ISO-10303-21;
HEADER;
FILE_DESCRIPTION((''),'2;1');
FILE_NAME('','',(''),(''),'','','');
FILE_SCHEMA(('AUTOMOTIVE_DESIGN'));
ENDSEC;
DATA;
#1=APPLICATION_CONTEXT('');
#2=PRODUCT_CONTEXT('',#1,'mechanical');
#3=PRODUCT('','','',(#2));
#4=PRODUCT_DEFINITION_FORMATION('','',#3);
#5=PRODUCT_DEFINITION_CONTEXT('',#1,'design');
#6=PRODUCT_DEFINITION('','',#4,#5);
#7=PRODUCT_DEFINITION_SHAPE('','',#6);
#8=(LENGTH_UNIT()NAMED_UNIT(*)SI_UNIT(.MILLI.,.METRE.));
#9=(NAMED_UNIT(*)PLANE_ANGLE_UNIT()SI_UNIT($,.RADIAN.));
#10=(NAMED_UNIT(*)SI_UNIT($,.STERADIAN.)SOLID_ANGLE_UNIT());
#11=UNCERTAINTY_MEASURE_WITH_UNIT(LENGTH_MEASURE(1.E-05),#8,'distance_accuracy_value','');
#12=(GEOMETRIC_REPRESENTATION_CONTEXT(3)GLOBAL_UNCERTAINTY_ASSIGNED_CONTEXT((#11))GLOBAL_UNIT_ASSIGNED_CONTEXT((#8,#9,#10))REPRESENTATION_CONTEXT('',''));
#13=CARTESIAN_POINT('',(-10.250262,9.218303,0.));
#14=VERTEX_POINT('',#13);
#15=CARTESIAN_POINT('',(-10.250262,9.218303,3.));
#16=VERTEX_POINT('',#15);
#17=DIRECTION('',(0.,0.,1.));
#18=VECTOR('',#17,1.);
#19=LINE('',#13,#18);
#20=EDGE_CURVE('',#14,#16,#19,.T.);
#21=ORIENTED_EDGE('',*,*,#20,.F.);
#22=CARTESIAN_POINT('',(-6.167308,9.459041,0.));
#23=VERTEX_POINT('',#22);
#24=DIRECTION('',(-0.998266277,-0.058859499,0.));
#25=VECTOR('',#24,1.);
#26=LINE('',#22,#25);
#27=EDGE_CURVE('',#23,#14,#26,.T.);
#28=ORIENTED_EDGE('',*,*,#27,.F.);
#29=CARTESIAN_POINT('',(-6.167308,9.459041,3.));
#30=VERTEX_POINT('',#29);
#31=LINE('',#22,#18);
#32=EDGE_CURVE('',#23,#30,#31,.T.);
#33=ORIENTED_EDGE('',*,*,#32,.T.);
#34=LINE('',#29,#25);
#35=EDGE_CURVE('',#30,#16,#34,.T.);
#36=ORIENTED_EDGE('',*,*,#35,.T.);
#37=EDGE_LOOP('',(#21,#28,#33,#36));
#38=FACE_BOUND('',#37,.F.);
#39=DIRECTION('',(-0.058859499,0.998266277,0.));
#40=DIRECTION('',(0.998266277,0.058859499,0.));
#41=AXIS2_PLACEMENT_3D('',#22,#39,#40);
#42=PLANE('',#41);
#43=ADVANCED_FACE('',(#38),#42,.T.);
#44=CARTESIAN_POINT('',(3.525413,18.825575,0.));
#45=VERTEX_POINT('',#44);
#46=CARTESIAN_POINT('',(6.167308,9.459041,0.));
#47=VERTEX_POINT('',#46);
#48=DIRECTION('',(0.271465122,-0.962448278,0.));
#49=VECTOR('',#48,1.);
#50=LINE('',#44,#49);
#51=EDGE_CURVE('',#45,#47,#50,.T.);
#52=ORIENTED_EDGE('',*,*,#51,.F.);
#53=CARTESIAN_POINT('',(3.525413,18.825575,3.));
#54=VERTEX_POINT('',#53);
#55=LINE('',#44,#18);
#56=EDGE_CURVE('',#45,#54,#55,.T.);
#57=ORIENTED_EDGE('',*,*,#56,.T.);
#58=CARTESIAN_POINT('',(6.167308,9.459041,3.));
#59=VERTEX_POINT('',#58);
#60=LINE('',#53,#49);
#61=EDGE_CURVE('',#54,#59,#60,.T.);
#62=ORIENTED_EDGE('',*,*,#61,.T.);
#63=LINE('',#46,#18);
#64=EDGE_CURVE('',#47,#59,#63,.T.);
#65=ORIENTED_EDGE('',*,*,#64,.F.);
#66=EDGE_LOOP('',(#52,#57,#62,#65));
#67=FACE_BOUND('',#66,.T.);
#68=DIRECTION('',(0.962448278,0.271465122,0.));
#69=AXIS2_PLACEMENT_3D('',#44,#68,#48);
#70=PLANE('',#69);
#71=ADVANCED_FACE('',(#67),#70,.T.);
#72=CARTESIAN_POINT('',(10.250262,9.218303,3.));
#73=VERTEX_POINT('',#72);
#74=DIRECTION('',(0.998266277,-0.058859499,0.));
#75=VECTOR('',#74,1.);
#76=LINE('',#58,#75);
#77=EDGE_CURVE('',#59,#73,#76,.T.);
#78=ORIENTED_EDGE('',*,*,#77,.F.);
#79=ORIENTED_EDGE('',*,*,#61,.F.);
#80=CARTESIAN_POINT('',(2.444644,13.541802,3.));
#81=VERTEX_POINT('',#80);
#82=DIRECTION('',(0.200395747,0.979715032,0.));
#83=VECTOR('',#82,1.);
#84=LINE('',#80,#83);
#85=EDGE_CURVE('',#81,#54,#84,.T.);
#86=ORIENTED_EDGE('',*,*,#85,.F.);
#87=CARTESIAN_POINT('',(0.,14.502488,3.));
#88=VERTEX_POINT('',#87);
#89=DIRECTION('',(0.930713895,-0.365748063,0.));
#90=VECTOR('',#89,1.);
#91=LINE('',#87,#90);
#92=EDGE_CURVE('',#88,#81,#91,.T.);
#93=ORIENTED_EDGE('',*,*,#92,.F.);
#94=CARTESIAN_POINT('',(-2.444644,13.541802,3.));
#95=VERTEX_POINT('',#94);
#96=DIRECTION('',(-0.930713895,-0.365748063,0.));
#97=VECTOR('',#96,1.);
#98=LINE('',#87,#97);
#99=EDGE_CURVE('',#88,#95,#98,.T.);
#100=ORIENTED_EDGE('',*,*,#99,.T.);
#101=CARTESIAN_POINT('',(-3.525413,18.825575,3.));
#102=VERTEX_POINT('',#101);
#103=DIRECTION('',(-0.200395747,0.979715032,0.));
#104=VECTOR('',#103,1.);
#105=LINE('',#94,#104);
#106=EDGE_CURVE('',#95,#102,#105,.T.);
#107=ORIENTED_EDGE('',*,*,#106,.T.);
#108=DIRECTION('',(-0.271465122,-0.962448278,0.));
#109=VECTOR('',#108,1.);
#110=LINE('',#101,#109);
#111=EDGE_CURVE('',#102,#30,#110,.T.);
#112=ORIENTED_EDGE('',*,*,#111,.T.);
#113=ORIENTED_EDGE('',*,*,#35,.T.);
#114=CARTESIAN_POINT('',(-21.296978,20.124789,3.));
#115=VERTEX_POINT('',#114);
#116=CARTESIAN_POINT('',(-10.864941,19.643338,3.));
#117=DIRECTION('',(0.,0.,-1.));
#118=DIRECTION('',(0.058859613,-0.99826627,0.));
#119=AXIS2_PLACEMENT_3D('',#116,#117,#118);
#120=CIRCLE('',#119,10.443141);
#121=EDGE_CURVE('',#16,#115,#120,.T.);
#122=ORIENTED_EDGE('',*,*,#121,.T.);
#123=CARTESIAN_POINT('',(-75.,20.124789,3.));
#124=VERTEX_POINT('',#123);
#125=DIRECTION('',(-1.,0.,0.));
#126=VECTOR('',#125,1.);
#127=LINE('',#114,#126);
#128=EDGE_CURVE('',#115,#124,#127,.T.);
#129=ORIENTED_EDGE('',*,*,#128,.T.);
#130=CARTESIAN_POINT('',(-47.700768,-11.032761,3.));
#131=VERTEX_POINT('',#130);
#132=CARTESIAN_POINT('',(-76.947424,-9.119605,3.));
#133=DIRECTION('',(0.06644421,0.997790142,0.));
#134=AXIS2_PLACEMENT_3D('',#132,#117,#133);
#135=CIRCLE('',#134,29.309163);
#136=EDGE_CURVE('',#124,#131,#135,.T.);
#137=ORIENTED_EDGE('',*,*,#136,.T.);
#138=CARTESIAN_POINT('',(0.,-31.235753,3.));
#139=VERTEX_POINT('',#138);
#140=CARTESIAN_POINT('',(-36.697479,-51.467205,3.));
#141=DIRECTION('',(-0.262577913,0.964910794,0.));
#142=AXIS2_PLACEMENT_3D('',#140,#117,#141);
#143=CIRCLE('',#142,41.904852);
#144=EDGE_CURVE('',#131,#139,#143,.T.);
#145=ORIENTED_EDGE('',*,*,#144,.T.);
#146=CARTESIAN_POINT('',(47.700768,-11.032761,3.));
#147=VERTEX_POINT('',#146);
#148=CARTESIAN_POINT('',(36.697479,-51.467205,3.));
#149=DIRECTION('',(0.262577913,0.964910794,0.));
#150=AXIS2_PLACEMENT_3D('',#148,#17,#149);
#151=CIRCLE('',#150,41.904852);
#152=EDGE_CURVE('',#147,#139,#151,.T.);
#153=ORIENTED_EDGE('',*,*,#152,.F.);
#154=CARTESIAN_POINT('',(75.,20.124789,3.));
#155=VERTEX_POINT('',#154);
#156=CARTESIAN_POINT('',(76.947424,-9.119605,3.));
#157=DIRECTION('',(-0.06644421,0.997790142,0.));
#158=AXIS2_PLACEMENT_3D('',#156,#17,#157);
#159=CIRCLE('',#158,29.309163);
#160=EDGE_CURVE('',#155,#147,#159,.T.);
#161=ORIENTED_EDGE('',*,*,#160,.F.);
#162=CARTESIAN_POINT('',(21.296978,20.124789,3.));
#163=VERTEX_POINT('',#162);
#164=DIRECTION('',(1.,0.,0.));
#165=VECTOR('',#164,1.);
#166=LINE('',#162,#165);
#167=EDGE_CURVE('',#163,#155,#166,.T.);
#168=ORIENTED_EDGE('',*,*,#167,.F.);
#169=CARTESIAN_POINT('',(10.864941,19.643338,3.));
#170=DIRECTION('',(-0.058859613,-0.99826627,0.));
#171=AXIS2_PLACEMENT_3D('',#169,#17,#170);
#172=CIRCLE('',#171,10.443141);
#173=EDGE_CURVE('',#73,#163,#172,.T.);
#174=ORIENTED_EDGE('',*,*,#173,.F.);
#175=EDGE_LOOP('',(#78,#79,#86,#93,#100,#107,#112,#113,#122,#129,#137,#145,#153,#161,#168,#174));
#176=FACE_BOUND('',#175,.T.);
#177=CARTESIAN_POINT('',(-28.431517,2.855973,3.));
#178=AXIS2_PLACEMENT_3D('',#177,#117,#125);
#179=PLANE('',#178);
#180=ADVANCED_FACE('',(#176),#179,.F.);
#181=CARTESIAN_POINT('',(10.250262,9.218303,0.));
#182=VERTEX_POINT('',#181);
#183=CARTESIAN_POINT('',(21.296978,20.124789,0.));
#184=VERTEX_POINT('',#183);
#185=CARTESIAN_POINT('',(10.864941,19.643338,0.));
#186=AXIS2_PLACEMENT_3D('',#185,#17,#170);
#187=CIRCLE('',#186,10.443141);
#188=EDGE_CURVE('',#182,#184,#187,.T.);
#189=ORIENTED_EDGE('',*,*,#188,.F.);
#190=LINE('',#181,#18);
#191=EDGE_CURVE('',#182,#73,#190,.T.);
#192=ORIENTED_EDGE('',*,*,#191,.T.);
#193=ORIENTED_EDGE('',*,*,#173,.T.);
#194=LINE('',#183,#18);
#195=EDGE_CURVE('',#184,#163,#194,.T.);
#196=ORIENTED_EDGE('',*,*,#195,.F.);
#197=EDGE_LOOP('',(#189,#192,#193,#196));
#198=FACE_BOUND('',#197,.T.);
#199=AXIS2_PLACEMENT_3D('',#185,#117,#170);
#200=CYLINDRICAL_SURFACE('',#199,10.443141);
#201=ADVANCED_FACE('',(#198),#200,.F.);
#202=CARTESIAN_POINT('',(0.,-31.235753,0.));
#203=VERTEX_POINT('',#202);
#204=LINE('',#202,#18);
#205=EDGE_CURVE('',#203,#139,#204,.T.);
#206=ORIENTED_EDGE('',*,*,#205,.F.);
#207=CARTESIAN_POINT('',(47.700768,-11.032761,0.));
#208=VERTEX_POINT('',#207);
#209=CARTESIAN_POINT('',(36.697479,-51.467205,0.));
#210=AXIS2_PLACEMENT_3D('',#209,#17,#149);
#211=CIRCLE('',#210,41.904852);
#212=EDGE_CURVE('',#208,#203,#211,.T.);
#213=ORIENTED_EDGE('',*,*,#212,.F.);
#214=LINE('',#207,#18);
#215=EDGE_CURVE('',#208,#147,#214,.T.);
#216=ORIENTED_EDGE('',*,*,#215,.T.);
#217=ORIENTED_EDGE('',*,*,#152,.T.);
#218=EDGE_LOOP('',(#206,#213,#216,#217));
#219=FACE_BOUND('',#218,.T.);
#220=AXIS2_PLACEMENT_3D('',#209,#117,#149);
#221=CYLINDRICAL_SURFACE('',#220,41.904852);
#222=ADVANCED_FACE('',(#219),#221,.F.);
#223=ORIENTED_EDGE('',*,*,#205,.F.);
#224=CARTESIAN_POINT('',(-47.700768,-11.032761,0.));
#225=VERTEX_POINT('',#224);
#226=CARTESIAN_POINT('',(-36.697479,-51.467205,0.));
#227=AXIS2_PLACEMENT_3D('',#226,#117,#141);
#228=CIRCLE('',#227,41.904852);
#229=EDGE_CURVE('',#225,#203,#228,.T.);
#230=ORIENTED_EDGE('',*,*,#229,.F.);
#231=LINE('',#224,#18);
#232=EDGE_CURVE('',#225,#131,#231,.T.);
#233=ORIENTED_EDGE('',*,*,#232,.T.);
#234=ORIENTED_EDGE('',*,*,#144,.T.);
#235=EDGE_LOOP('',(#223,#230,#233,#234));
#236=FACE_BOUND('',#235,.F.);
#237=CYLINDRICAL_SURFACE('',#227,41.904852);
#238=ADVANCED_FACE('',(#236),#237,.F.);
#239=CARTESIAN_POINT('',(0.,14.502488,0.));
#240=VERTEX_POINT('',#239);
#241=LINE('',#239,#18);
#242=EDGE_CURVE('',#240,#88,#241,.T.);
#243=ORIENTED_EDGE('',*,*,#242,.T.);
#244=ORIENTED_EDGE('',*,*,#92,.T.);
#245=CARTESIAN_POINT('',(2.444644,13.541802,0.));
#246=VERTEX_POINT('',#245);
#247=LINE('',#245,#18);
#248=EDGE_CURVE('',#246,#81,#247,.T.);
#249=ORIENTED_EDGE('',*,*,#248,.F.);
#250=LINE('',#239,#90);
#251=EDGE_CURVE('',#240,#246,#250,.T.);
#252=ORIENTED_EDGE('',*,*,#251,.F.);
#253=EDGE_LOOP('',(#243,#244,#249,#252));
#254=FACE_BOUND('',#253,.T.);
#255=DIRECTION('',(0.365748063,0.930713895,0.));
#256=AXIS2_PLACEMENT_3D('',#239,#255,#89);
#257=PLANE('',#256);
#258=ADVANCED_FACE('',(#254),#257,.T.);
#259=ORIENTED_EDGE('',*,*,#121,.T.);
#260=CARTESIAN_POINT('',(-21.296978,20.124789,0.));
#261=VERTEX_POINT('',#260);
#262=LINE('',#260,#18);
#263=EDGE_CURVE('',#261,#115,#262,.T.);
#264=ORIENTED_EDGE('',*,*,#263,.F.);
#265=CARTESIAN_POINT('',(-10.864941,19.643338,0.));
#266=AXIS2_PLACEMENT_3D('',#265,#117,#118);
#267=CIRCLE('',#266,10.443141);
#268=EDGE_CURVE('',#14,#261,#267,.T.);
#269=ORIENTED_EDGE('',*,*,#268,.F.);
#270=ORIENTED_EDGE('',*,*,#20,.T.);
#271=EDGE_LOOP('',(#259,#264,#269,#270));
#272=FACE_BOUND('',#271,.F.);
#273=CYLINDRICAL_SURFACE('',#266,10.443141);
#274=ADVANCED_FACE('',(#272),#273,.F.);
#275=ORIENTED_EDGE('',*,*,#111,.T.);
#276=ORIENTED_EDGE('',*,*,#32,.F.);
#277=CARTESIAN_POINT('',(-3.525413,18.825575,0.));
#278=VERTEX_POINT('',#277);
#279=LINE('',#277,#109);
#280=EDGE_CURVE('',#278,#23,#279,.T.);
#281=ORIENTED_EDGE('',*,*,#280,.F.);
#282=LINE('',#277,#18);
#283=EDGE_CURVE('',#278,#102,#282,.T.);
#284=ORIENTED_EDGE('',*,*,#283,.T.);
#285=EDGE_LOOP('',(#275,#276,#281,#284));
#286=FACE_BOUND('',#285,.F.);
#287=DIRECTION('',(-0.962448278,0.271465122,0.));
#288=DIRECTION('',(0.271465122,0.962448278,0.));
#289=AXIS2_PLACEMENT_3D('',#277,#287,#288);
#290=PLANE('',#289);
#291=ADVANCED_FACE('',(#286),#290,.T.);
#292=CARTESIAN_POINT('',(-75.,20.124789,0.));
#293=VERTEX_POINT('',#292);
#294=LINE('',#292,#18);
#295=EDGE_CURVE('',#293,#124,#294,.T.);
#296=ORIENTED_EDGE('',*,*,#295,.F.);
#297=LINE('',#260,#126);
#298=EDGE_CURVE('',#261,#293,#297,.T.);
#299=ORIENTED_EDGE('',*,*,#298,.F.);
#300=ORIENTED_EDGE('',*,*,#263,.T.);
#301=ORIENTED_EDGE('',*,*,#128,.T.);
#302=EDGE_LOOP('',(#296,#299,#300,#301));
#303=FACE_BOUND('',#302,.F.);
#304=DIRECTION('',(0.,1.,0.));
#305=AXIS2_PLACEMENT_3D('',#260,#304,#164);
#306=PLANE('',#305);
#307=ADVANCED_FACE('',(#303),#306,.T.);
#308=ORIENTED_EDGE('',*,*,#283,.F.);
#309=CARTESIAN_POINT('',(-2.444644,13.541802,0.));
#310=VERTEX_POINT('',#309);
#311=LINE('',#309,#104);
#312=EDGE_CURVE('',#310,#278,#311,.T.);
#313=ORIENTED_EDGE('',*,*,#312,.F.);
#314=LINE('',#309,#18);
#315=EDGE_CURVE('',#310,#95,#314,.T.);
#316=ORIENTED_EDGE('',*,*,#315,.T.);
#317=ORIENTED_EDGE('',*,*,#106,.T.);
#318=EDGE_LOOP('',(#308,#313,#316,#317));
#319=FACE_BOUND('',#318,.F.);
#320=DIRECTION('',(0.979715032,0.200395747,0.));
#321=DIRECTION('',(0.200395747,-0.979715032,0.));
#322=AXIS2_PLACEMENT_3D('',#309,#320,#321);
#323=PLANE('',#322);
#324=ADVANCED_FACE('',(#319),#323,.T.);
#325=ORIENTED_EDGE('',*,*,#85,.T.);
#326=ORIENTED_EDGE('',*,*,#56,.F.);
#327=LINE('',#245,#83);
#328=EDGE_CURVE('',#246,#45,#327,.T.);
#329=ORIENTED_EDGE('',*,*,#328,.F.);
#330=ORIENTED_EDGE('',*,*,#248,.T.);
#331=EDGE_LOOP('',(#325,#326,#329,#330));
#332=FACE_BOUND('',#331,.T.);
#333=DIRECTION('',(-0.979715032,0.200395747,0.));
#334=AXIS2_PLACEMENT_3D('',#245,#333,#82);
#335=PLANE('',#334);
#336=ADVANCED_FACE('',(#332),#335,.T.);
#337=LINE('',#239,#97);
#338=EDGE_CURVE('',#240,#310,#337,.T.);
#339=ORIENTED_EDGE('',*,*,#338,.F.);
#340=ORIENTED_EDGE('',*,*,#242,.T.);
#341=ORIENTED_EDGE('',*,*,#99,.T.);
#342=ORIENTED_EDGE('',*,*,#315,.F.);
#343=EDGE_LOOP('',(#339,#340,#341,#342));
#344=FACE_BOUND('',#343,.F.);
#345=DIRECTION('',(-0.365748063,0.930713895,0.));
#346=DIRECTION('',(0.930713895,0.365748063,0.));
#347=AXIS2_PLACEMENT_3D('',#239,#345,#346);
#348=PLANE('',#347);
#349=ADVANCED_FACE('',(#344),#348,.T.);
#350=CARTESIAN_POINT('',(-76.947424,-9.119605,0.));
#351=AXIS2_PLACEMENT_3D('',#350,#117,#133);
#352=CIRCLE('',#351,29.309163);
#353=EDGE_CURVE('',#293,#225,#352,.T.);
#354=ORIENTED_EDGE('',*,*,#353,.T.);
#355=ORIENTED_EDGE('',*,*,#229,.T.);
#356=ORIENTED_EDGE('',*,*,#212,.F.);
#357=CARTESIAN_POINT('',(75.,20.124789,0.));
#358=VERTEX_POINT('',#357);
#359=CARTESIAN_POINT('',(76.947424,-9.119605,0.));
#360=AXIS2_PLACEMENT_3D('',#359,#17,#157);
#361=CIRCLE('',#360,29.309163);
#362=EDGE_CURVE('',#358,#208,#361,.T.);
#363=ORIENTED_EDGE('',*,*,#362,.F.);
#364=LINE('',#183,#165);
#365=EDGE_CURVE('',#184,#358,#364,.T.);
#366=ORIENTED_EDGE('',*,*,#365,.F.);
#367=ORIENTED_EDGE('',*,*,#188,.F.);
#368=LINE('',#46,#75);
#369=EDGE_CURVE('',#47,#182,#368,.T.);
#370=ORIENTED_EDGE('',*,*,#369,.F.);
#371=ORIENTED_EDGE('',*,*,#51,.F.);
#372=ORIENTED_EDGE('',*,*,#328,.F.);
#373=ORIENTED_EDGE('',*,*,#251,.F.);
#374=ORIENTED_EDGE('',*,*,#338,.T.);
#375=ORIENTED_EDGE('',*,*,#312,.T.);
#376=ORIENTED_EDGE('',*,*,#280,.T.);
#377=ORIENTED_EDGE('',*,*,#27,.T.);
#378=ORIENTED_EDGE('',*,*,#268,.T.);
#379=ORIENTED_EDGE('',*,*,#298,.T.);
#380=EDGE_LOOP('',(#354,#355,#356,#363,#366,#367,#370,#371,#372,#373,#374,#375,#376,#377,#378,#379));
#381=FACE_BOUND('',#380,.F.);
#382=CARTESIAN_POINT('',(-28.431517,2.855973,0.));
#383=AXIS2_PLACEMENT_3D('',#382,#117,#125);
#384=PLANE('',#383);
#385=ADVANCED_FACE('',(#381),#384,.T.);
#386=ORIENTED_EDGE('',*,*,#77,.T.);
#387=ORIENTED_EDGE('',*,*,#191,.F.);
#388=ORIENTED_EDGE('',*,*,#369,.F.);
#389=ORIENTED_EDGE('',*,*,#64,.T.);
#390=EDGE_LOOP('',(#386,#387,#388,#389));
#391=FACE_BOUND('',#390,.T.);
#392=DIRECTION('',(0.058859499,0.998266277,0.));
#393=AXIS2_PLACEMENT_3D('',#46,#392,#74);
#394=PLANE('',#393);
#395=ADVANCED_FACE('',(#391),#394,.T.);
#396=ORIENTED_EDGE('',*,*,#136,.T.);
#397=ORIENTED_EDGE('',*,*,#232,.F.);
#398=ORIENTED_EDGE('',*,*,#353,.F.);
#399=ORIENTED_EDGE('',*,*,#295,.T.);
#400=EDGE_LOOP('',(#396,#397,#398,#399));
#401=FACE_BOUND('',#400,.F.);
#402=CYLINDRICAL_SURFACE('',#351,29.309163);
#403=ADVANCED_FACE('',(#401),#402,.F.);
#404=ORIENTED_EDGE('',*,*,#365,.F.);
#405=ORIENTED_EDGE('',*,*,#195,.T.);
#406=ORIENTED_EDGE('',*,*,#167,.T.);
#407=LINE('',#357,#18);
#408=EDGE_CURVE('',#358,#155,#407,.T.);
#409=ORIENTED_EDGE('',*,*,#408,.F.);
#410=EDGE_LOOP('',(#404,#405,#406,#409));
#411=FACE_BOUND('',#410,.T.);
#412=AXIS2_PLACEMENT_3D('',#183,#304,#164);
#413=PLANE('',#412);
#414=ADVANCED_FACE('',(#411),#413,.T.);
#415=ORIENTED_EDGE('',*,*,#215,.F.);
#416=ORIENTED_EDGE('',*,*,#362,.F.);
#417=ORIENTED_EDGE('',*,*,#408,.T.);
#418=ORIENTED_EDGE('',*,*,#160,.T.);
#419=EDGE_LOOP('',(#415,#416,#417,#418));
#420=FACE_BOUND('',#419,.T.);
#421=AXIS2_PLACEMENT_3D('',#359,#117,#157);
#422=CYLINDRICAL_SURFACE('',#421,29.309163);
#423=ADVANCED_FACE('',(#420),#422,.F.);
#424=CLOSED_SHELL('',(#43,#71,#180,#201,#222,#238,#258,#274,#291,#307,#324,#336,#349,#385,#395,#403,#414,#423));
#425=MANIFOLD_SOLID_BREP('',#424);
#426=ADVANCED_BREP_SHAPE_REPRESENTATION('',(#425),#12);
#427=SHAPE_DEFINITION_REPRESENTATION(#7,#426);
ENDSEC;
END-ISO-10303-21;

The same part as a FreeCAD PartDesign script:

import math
import FreeCAD as App
import Part
import Sketcher

V = App.Vector
Q = App.Units.Quantity

doc = App.newDocument("Part")
body = doc.addObject("PartDesign::Body", "Body")

# Sketch on XY plane
sketch1 = body.newObject("Sketcher::SketchObject", "Sketch")
sketch1.AttachmentSupport = (doc.getObject("XY_Plane"), [""])
sketch1.MapMode = "FlatFace"
sketch1.addGeometry(Part.LineSegment(V(2.4, 13.5, 0), V(0, 14.5, 0)), False)
sketch1.addGeometry(Part.LineSegment(V(0, 14.5, 0), V(0, -31.2, 0)), False)
sketch1.addGeometry(Part.ArcOfCircle(Part.Circle(V(36.7, -51.5, 0), V(0, 0, 1), 41.9), math.radians(75), math.radians(151)), False)
sketch1.addGeometry(Part.ArcOfCircle(Part.Circle(V(76.9, -9.1, 0), V(0, 0, 1), 29.3), math.radians(94), math.radians(184)), False)
sketch1.addGeometry(Part.LineSegment(V(75, 20.1, 0), V(21.3, 20.1, 0)), False)
sketch1.addGeometry(Part.ArcOfCircle(Part.Circle(V(10.9, 19.6, 0), V(0, 0, 1), 10.4), math.radians(-93), math.radians(3)), False)
sketch1.addGeometry(Part.LineSegment(V(10.3, 9.2, 0), V(6.2, 9.5, 0)), False)
sketch1.addGeometry(Part.LineSegment(V(6.2, 9.5, 0), V(3.5, 18.8, 0)), False)
sketch1.addGeometry(Part.LineSegment(V(3.5, 18.8, 0), V(2.4, 13.5, 0)), False)
sketch1.addConstraint(Sketcher.Constraint("Coincident", 0, 2, 1, 1))
sketch1.addConstraint(Sketcher.Constraint("Coincident", 1, 2, 2, 2))
sketch1.addConstraint(Sketcher.Constraint("Coincident", 2, 1, 3, 2))
sketch1.addConstraint(Sketcher.Constraint("Coincident", 3, 1, 4, 1))
sketch1.addConstraint(Sketcher.Constraint("Coincident", 4, 2, 5, 2))
sketch1.addConstraint(Sketcher.Constraint("Tangent", 5, 1, 6, 1))
sketch1.addConstraint(Sketcher.Constraint("Coincident", 6, 2, 7, 1))
sketch1.addConstraint(Sketcher.Constraint("Coincident", 7, 2, 8, 1))
sketch1.addConstraint(Sketcher.Constraint("Coincident", 8, 2, 0, 1))
sketch1.addConstraint(Sketcher.Constraint("Vertical", 1))
sketch1.addConstraint(Sketcher.Constraint("Horizontal", 4))
sketch1.addConstraint(Sketcher.Constraint("PointOnObject", 0, 2, -2))
sketch1.addConstraint(Sketcher.Constraint("DistanceX", -1, 1, 3, 1, Q("75 mm")))
sketch1.addConstraint(Sketcher.Constraint("Radius", 5, Q("10.443141 mm")))
sketch1.addConstraint(Sketcher.Constraint("Radius", 2, Q("41.904852 mm")))
sketch1.addConstraint(Sketcher.Constraint("Radius", 3, Q("29.309163 mm")))
sketch1.addConstraint(Sketcher.Constraint("DistanceY", 1, 2, 1, 1, Q("45.738241 mm")))
sketch1.addConstraint(Sketcher.Constraint("DistanceY", 2, 3, 3, 3, Q("42.3476 mm")))
sketch1.addConstraint(Sketcher.Constraint("DistanceY", 2, 1, 5, 3, Q("30.676099 mm")))
sketch1.addConstraint(Sketcher.Constraint("DistanceY", 0, 2, 3, 1, Q("5.622301 mm")))
sketch1.addConstraint(Sketcher.Constraint("DistanceY", 5, 1, 8, 2, Q("4.323499 mm")))
sketch1.addConstraint(Sketcher.Constraint("DistanceX", 4, 2, 4, 1, Q("53.703022 mm")))
sketch1.addConstraint(Sketcher.Constraint("DistanceX", -1, 1, 2, 3, Q("36.697479 mm")))
sketch1.addConstraint(Sketcher.Constraint("DistanceY", -1, 1, 5, 3, Q("19.643338 mm")))
sketch1.addConstraint(Sketcher.Constraint("DistanceX", -1, 1, 6, 2, Q("6.167308 mm")))
sketch1.addConstraint(Sketcher.Constraint("DistanceY", -1, 1, 6, 2, Q("9.459041 mm")))
sketch1.addConstraint(Sketcher.Constraint("DistanceX", 7, 2, 5, 3, Q("7.339528 mm")))
sketch1.addConstraint(Sketcher.Constraint("DistanceY", 5, 1, 7, 2, Q("9.607272 mm")))
sketch1.addConstraint(Sketcher.Constraint("DistanceX", 8, 2, 7, 2, Q("1.080769 mm")))
pad1 = body.newObject("PartDesign::Pad", "Pad")
pad1.Profile = sketch1
pad1.Length = 3
doc.recompute()

mirrored = body.newObject("PartDesign::Mirrored", "Mirrored")
mirrored.Originals = [pad1]
mirrored.MirrorPlane = (doc.getObject("YZ_Plane"), [""])
body.Tip = mirrored

doc.recompute()
